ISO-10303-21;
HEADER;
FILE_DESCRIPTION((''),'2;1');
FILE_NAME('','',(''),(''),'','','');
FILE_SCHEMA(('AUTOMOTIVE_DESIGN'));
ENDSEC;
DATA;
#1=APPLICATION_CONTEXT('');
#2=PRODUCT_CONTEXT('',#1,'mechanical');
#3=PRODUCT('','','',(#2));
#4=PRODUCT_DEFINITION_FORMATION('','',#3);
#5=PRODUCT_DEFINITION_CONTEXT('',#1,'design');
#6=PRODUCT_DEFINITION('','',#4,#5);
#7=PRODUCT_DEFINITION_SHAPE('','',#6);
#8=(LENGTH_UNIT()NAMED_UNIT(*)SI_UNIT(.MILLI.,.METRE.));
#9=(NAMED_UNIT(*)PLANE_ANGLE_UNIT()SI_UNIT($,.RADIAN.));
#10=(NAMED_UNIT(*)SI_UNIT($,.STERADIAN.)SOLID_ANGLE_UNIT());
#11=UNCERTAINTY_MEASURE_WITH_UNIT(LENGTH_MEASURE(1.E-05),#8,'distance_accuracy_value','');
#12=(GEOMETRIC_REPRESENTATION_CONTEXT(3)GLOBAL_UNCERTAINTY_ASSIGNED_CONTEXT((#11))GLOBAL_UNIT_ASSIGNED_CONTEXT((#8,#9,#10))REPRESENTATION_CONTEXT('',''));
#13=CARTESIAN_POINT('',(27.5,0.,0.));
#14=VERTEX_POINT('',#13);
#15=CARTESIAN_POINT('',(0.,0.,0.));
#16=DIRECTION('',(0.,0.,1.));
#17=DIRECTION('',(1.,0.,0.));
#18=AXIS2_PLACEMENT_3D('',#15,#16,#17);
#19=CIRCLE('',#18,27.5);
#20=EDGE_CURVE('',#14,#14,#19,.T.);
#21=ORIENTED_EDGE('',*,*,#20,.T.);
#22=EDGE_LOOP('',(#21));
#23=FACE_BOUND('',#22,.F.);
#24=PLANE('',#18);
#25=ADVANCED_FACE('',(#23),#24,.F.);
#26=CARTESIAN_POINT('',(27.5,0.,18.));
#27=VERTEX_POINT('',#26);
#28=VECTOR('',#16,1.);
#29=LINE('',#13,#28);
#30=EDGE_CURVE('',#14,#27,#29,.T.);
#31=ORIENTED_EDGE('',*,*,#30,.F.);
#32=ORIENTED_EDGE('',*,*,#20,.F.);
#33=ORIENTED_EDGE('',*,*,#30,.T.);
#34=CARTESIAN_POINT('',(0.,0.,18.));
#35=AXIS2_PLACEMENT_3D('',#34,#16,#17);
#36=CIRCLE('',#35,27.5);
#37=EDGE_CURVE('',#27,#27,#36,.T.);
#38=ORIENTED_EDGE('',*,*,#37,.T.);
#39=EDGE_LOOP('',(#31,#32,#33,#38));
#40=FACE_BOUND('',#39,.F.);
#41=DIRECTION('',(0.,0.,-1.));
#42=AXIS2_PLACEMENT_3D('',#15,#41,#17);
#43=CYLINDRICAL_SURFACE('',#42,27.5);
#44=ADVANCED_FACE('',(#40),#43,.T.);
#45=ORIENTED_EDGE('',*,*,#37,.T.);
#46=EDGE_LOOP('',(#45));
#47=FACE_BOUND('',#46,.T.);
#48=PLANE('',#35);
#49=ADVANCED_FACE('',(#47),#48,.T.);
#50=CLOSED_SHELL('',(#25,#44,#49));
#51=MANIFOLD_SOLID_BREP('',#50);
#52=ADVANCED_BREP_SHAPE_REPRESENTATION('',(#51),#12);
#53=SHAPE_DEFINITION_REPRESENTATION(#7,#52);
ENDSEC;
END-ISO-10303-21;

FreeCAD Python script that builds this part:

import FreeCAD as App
import Part
import Sketcher

V = App.Vector

doc = App.newDocument("Part")
body = doc.addObject("PartDesign::Body", "Body")

sketch1 = body.newObject("Sketcher::SketchObject", "Sketch")
sketch1.AttachmentSupport = (doc.getObject("XY_Plane"), [""])
sketch1.MapMode = "FlatFace"
sketch1.addGeometry(Part.Circle(V(0, 0, 0), V(0, 0, 1), 28), False)
sketch1.addConstraint(Sketcher.Constraint("Coincident", 0, 3, -1, 1))
sketch1.addConstraint(Sketcher.Constraint("Diameter", 0, 55.0))
pad1 = body.newObject("PartDesign::Pad", "Pad")
pad1.Profile = sketch1
pad1.Length = 18

doc.recompute()
